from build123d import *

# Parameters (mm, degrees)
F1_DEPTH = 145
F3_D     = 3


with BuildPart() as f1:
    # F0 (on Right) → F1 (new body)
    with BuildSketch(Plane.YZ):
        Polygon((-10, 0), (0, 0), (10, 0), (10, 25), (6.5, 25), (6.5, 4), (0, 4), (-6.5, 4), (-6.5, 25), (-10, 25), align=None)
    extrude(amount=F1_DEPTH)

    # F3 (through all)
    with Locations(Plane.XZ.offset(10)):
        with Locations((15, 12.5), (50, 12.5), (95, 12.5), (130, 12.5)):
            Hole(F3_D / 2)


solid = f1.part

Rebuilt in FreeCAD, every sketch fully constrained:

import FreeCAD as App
import Part
import Sketcher

V = App.Vector
Q = App.Units.Quantity


def add_polygon(sketch, points):
    """Adds a closed chain of lines whose ends are joined by coincident constraints."""
    first, n = sketch.GeometryCount, len(points)
    for a, b in zip(points, points[1:] + points[:1]):
        sketch.addGeometry(Part.LineSegment(App.Vector(*a, 0), App.Vector(*b, 0)), False)
    for i in range(n):
        sketch.addConstraint(Sketcher.Constraint("Coincident", first + i, 2, first + (i + 1) % n, 1))

doc = App.newDocument("Part")
body = doc.addObject("PartDesign::Body", "Body")

# Sketch on YZ plane
sketch1 = body.newObject("Sketcher::SketchObject", "Sketch")
sketch1.AttachmentSupport = (doc.getObject("YZ_Plane"), [""])
sketch1.MapMode = "FlatFace"
add_polygon(sketch1, [(-10, 0), (10, 0), (10, 25), (6.5, 25), (6.5, 4), (-6.5, 4), (-6.5, 25), (-10, 25)])  # lines 0-7
sketch1.addConstraint([
    Sketcher.Constraint("Horizontal", 0),
    Sketcher.Constraint("Vertical", 1),
    Sketcher.Constraint("Horizontal", 2),
    Sketcher.Constraint("Vertical", 3),
    Sketcher.Constraint("Horizontal", 4),
    Sketcher.Constraint("Vertical", 5),
    Sketcher.Constraint("Horizontal", 6),
    Sketcher.Constraint("Vertical", 7),
    Sketcher.Constraint("Symmetric", 0, 2, 7, 2, -1, 1),
    Sketcher.Constraint("Symmetric", 2, 2, 5, 2, -2),
    Sketcher.Constraint("DistanceX", 0, 1, 0, 2, Q("20 mm")),
    Sketcher.Constraint("DistanceX", 4, 2, 4, 1, Q("13 mm")),
    Sketcher.Constraint("DistanceY", 1, 1, 1, 2, Q("25 mm")),
    Sketcher.Constraint("DistanceY", 3, 2, 3, 1, Q("21 mm")),
])
pad1 = body.newObject("PartDesign::Pad", "Pad")
pad1.Profile = sketch1
pad1.Length = 145

# Sketch on XZ plane
sketch2 = body.newObject("Sketcher::SketchObject", "Sketch001")
sketch2.AttachmentSupport = (doc.getObject("XZ_Plane"), [""])
sketch2.MapMode = "FlatFace"
sketch2.AttachmentOffset = App.Placement(V(0, 0, 10), App.Rotation())
sketch2.addGeometry([
    Part.Circle(V(15, 12.5, 0), V(0, 0, 1), 1.5),
    Part.Circle(V(50, 12.5, 0), V(0, 0, 1), 1.5),
    Part.Circle(V(95, 12.5, 0), V(0, 0, 1), 1.5),
    Part.Circle(V(130, 12.5, 0), V(0, 0, 1), 1.5),
], False)
sketch2.addConstraint([
    Sketcher.Constraint("Equal", 0, 1),
    Sketcher.Constraint("Equal", 1, 2),
    Sketcher.Constraint("Equal", 2, 3),
    Sketcher.Constraint("Horizontal", 0, 3, 1, 3),
    Sketcher.Constraint("Horizontal", 1, 3, 2, 3),
    Sketcher.Constraint("Horizontal", 2, 3, 3, 3),
    Sketcher.Constraint("Diameter", 0, Q("3 mm")),
    Sketcher.Constraint("DistanceX", -1, 1, 0, 3, Q("15 mm")),
    Sketcher.Constraint("DistanceX", -1, 1, 1, 3, Q("50 mm")),
    Sketcher.Constraint("DistanceX", -1, 1, 2, 3, Q("95 mm")),
    Sketcher.Constraint("DistanceX", -1, 1, 3, 3, Q("130 mm")),
    Sketcher.Constraint("DistanceY", -1, 1, 0, 3, Q("12.5 mm")),
])
doc.recompute()
hole = body.newObject("PartDesign::Hole", "Hole")
hole.Profile = sketch2
hole.ThreadType = "None"
hole.Diameter = 3
hole.DepthType = "ThroughAll"

doc.recompute()
